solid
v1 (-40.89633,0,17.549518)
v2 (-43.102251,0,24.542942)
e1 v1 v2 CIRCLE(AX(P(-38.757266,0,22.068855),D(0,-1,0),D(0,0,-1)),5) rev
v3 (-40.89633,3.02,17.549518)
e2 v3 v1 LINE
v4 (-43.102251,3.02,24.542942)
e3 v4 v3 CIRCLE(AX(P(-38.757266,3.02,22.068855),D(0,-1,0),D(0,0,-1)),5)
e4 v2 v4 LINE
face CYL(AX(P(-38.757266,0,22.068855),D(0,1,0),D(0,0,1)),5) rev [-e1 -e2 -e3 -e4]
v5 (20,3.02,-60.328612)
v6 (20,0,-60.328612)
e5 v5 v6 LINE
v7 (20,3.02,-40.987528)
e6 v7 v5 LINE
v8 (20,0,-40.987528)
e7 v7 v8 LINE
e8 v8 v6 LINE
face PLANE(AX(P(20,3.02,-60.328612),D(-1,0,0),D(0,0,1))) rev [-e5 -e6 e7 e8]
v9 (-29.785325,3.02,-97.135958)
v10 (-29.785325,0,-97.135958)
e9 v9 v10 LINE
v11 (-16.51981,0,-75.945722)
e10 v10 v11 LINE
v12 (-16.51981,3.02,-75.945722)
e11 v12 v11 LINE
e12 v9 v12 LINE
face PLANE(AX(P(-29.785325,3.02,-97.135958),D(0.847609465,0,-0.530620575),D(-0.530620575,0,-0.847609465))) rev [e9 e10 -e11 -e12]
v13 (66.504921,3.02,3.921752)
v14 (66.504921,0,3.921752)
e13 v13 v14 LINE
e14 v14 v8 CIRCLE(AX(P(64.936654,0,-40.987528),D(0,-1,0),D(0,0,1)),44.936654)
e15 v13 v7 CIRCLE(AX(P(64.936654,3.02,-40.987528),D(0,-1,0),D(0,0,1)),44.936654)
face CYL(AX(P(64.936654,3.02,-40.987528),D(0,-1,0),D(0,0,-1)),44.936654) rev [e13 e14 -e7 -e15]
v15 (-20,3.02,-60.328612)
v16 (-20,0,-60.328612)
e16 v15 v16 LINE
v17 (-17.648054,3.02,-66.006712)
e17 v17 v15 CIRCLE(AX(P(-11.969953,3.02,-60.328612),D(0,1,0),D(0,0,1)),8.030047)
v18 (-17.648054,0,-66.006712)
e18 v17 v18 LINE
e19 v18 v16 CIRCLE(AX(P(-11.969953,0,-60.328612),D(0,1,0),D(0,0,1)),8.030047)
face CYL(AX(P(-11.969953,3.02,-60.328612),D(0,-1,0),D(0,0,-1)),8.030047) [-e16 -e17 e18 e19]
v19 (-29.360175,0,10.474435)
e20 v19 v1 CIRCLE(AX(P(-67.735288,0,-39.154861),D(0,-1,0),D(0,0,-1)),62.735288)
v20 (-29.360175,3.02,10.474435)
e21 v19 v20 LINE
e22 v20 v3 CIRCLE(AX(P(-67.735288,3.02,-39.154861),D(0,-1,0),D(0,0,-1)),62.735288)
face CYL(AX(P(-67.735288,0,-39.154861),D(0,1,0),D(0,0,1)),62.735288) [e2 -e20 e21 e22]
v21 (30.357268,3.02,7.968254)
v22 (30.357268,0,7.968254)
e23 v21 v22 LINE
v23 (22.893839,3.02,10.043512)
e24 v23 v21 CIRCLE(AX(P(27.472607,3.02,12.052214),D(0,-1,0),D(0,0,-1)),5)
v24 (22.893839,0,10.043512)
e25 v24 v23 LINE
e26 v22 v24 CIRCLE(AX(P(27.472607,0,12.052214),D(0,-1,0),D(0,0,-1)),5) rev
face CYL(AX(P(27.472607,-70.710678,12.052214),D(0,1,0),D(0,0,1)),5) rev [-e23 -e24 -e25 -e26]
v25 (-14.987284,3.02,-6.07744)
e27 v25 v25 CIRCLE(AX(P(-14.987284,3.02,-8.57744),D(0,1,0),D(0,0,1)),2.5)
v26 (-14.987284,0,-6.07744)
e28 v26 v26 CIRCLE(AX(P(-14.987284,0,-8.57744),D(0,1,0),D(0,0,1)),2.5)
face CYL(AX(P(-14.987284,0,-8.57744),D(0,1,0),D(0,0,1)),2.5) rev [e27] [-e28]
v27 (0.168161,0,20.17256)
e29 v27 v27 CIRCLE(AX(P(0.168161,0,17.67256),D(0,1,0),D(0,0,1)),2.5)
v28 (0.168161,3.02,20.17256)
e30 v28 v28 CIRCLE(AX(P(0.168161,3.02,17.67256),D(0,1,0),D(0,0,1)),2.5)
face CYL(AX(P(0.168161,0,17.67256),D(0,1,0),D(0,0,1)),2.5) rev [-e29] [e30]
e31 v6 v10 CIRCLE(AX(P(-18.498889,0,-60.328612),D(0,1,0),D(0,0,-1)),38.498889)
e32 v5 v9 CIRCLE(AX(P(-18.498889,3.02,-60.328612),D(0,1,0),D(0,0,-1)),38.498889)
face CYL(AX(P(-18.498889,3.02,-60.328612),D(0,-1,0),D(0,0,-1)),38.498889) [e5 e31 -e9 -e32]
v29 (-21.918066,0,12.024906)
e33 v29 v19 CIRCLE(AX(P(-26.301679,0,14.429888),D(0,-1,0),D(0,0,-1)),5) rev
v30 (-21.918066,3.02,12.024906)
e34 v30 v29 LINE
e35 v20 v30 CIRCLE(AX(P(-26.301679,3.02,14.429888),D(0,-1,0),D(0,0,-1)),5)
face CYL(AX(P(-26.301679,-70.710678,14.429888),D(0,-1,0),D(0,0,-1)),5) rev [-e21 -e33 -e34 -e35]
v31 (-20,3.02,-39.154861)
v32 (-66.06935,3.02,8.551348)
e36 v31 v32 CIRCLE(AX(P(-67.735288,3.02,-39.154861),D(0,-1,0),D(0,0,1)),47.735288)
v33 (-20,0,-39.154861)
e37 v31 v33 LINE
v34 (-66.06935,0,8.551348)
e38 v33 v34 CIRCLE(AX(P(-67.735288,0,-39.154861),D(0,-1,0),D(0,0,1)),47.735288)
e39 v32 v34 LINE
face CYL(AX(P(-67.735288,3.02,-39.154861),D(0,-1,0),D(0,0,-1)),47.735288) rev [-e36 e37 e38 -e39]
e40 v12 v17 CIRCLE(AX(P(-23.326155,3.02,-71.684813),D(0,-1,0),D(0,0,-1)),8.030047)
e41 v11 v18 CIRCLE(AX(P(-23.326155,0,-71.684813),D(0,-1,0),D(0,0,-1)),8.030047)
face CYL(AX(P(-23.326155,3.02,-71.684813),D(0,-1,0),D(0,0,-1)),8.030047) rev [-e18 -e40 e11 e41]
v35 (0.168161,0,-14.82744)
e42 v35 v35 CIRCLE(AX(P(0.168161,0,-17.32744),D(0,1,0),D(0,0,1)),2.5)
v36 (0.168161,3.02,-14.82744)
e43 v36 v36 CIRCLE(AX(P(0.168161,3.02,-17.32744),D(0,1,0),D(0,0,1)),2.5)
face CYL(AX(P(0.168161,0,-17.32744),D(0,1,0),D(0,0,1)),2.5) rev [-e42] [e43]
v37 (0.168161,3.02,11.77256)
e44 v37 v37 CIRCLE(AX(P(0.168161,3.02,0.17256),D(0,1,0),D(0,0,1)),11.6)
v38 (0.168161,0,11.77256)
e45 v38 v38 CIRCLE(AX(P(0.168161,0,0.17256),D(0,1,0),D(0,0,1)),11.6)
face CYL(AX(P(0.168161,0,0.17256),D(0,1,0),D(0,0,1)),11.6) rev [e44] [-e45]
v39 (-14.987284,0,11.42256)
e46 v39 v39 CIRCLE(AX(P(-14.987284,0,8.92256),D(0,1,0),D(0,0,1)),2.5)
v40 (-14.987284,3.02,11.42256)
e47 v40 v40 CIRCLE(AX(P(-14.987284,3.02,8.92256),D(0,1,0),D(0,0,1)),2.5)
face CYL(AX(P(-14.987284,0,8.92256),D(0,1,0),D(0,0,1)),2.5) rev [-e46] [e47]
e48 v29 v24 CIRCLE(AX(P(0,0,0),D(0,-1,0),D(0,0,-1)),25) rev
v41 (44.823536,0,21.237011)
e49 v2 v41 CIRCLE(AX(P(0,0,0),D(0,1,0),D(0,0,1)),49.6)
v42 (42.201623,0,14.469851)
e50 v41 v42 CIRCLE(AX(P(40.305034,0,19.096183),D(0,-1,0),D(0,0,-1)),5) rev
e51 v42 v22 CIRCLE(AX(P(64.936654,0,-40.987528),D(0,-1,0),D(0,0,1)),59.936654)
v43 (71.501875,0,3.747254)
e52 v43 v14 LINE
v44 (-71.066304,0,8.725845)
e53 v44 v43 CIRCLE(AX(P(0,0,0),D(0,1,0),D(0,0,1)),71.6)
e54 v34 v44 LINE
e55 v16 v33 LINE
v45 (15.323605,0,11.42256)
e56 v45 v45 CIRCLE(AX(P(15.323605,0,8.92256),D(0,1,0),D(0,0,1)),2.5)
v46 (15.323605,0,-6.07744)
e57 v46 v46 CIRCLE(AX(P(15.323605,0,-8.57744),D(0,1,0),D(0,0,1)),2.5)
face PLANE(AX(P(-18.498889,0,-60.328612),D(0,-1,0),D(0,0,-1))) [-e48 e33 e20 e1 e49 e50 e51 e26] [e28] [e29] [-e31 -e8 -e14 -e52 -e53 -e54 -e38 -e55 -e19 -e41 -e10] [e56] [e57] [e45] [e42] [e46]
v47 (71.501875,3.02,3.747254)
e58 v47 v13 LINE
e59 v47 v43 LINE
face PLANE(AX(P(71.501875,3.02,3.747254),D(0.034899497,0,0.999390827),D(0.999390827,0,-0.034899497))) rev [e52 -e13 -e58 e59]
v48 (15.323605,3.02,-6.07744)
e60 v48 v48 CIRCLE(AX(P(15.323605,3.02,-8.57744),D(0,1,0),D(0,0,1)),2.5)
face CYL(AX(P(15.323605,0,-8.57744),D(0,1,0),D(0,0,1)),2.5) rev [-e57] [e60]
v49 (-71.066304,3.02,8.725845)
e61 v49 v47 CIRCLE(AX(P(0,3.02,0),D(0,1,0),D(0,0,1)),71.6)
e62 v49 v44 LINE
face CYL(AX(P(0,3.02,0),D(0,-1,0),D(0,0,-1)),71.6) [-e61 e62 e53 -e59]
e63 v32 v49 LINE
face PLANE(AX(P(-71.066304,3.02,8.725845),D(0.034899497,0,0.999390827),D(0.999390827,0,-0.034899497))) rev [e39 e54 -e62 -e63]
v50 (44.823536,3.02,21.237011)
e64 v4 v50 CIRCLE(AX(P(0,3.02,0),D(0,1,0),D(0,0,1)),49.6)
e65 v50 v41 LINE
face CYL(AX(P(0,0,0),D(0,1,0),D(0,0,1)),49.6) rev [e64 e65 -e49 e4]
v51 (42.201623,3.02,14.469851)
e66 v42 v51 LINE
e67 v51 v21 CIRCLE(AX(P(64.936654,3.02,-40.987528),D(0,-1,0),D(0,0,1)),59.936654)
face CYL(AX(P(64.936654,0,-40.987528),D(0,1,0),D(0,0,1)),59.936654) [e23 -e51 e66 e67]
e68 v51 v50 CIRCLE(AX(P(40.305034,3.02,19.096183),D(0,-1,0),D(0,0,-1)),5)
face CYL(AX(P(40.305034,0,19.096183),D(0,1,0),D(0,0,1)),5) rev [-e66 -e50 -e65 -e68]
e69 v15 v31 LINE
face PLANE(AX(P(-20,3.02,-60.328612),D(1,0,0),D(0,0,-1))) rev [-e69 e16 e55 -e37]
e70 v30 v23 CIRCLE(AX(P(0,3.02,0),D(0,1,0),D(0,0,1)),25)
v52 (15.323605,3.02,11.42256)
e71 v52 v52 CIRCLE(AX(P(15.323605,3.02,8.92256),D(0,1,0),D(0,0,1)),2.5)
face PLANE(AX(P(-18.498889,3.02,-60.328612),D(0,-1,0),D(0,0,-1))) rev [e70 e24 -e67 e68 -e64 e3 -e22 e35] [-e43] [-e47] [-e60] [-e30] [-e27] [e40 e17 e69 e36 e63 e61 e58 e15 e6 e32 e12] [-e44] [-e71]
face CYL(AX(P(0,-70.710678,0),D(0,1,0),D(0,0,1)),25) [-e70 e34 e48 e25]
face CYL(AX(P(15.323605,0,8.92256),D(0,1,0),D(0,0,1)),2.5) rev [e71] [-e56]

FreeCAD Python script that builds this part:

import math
import FreeCAD as App
import Part
import Sketcher

V = App.Vector


def edges_at(feature, points):
    """Names of the edges that pass closest to the given points."""
    edges = feature.Shape.Edges
    near = lambda p: min(range(len(edges)), key=lambda i: edges[i].distToShape(Part.Vertex(*p))[0])
    return sorted({f"Edge{near(p) + 1}" for p in points})

doc = App.newDocument("Part")
params = doc.addObject("Spreadsheet::Sheet", "Params")
for row, (alias, value) in enumerate([
    ("sketch1_radius", "71.6 mm"),
    ("sketch1_length", "25 mm"),
    ("sketch1_length2", "5 mm"),
    ("sketch1_length3", "5 mm"),
    ("pad1_length", "3.02 mm"),
    ("sketch2_radius", "49.6 mm"),
    ("fillet_radius", "5 mm"),
    ("sketch3_diameter", "50 mm"),
    ("pad2_length", "3.02 mm"),
    ("fillet2_radius", "5 mm"),
    ("sketch4_diameter", "23.2 mm"),
    ("sketch5_diameter", "5 mm"),
], start=1):
    params.set(f"A{row}", alias)
    params.set(f"B{row}", "=" + value)
    params.setAlias(f"B{row}", alias)

body = doc.addObject("PartDesign::Body", "Body")

# Sketch on XZ plane
sketch1 = body.newObject("Sketcher::SketchObject", "Sketch")
sketch1.AttachmentSupport = (doc.getObject("XZ_Plane"), [""])
sketch1.MapMode = "FlatFace"
sketch1.addGeometry([
    Part.LineSegment(V(-29.785325, -97.135958, 0), V(-16.51981, -75.945722, 0)),  # 0
    Part.ArcOfCircle(Part.Circle(V(-23.326155, -71.684813, 0), V(0, 0, 1), 8.030047), math.radians(-32.047394), math.radians(45)),  # 1
    Part.ArcOfCircle(Part.Circle(V(-11.969953, -60.328612, 0), V(0, 0, 1), 8.030047), math.radians(-180), math.radians(-135)),  # 2
    Part.LineSegment(V(-20, -60.328612, 0), V(-20, -39.154861, 0)),  # 3
    Part.ArcOfCircle(Part.Circle(V(-67.735288, -39.154861, 0), V(0, 0, 1), 47.735288), math.radians(0), math.radians(88)),  # 4
    Part.LineSegment(V(-66.06935, 8.551348, 0), V(-71.066304, 8.725845, 0)),  # 5
    Part.ArcOfCircle(Part.Circle(V(0, 0, 0), V(0, 0, 1), 71.6), math.radians(3), math.radians(173)),  # 6
    Part.LineSegment(V(71.501875, 3.747254, 0), V(66.504921, 3.921752, 0)),  # 7
    Part.ArcOfCircle(Part.Circle(V(64.936654, -40.987528, 0), V(0, 0, 1), 44.936654), math.radians(88), math.radians(180)),  # 8
    Part.LineSegment(V(20, -40.987528, 0), V(20, -60.328612, 0)),  # 9
    Part.ArcOfCircle(Part.Circle(V(-18.498889, -60.328612, 0), V(0, 0, 1), 38.498889), math.radians(-107.047394), math.radians(0)),  # 10
], False)
sketch1.addConstraint([
    Sketcher.Constraint("Coincident", 0, 2, 1, 1),
    Sketcher.Constraint("Coincident", 1, 2, 2, 2),
    Sketcher.Constraint("Coincident", 2, 1, 3, 1),
    Sketcher.Constraint("Coincident", 3, 2, 4, 1),
    Sketcher.Constraint("Coincident", 4, 2, 5, 1),
    Sketcher.Constraint("Coincident", 5, 2, 6, 2),
    Sketcher.Constraint("Coincident", 6, 1, 7, 1),
    Sketcher.Constraint("Coincident", 7, 2, 8, 1),
    Sketcher.Constraint("Coincident", 8, 2, 9, 1),
    Sketcher.Constraint("Coincident", 9, 2, 10, 2),
    Sketcher.Constraint("Coincident", 10, 1, 0, 1),
    Sketcher.Constraint("Vertical", 3),
    Sketcher.Constraint("Vertical", 9),
    Sketcher.Constraint("Coincident", 6, 3, -1, 1),
    Sketcher.Constraint("Radius", 6, 71.6),
    Sketcher.Constraint("Distance", 0, 25.0),
    Sketcher.Constraint("Distance", 5, 5.0),
    Sketcher.Constraint("Distance", 7, 5.0),
    Sketcher.Constraint("DistanceX", 2, 1, -1, 1, 20.0),
    Sketcher.Constraint("DistanceX", -1, 1, 8, 2, 20.0),
    Sketcher.Constraint("Radius", 10, 38.498889),
    Sketcher.Constraint("Radius", 1, 8.030047),
    Sketcher.Constraint("Radius", 2, 8.030047),
    Sketcher.Constraint("Radius", 4, 47.735288),
    Sketcher.Constraint("Radius", 8, 44.936654),
    Sketcher.Constraint("DistanceY", 3, 1, 3, 2, 21.17375),
    Sketcher.Constraint("DistanceX", 1, 3, 2, 3, 11.356202),
    Sketcher.Constraint("DistanceY", 1, 3, 10, 3, 11.356202),
    Sketcher.Constraint("DistanceY", 1, 2, 10, 3, 5.678101),
    Sketcher.Constraint("DistanceY", 1, 2, 2, 1, 5.678101),
    Sketcher.Constraint("DistanceY", 1, 2, 9, 2, 5.678101),
    Sketcher.Constraint("DistanceY", 9, 2, 9, 1, 19.341084),
    Sketcher.Constraint("DistanceY", 2, 3, -1, 1, 60.328612),
    Sketcher.Constraint("DistanceY", 4, 3, -1, 1, 39.154861),
    Sketcher.Constraint("DistanceX", 0, 2, -1, 1, 16.51981),
    Sketcher.Constraint("DistanceX", -1, 1, 7, 2, 66.504921),
    Sketcher.Constraint("DistanceY", -1, 1, 7, 2, 3.921752),
    Sketcher.Constraint("DistanceX", 5, 2, -1, 1, 71.066304),
])
sketch1.setExpression("Constraints[14]", "Params.sketch1_radius")
sketch1.setExpression("Constraints[15]", "Params.sketch1_length")
sketch1.setExpression("Constraints[16]", "Params.sketch1_length2")
sketch1.setExpression("Constraints[17]", "Params.sketch1_length3")
pad1 = body.newObject("PartDesign::Pad", "Pad")
pad1.Profile = sketch1
pad1.setExpression("Length", "Params.pad1_length")
pad1.Reversed = True

# Sketch on XZ plane
sketch2 = body.newObject("Sketcher::SketchObject", "Sketch001")
sketch2.AttachmentSupport = (doc.getObject("XZ_Plane"), [""])
sketch2.MapMode = "FlatFace"
sketch2.AttachmentOffset = App.Placement(V(0, 0, -3.02), App.Rotation())
sketch2.addGeometry([
    Part.ArcOfCircle(Part.Circle(V(0, 0, 0), V(0, 0, 1), 50), math.radians(19), math.radians(157)),
    Part.ArcOfCircle(Part.Circle(V(65, -41, 0), V(0, 0, 1), 60), math.radians(108), math.radians(148)),
    Part.ArcOfCircle(Part.Circle(V(0, 0, 0), V(0, 0, 1), 17), math.radians(-32), math.radians(189)),
    Part.ArcOfCircle(Part.Circle(V(-68, -39, 0), V(0, 0, 1), 63), math.radians(35), math.radians(69)),
], False)
sketch2.addConstraint([
    Sketcher.Constraint("Coincident", 0, 1, 1, 1),
    Sketcher.Constraint("Tangent", 1, 2, 2, 1),
    Sketcher.Constraint("Coincident", 2, 2, 3, 1),
    Sketcher.Constraint("Coincident", 3, 2, 0, 2),
    Sketcher.Constraint("Coincident", 0, 3, -1, 1),
    Sketcher.Constraint("Coincident", 2, 3, -1, 1),
    Sketcher.Constraint("Radius", 0, 49.6),
    Sketcher.Constraint("Radius", 2, 16.853622),
    Sketcher.Constraint("Radius", 1, 59.936654),
    Sketcher.Constraint("Radius", 3, 62.735288),
    Sketcher.Constraint("DistanceY", 3, 3, -1, 1, 39.154861),
    Sketcher.Constraint("DistanceY", -1, 1, 0, 1, 16.167989),
    Sketcher.Constraint("DistanceX", 3, 2, -1, 1, 45.58838),
])
sketch2.setExpression("Constraints[6]", "Params.sketch2_radius")
pocket1 = body.newObject("PartDesign::Pocket", "Pocket")
pocket1.Profile = sketch2
pocket1.Type = "ThroughAll"
pocket1.Reversed = True
doc.recompute()

fillet = body.newObject("PartDesign::Fillet", "Fillet")
fillet.Base = (pocket1, edges_at(pocket1, [(-45.588, 1.51, 19.541), (46.891, 1.51, 16.168)]))
fillet.setExpression("Radius", "Params.fillet_radius")

# Sketch on XZ plane
sketch3 = body.newObject("Sketcher::SketchObject", "Sketch002")
sketch3.AttachmentSupport = (doc.getObject("XZ_Plane"), [""])
sketch3.MapMode = "FlatFace"
sketch3.AttachmentOffset = App.Placement(V(0, 0, -3.02), App.Rotation())
sketch3.addGeometry(Part.Circle(V(0, 0, 0), V(0, 0, 1), 25), False)
sketch3.addConstraint([
    Sketcher.Constraint("Coincident", 0, 3, -1, 1),
    Sketcher.Constraint("Diameter", 0, 50.0),
])
sketch3.setExpression("Constraints[1]", "Params.sketch3_diameter")
pad2 = body.newObject("PartDesign::Pad", "Pad001")
pad2.Profile = sketch3
pad2.setExpression("Length", "Params.pad2_length")
doc.recompute()

fillet2 = body.newObject("PartDesign::Fillet", "Fillet001")
fillet2.Base = (pad2, edges_at(pad2, [(24.756, 1.51, 3.486), (-24.253, 1.51, 6.067)]))
fillet2.setExpression("Radius", "Params.fillet2_radius")

# Sketch on XZ plane
sketch4 = body.newObject("Sketcher::SketchObject", "Sketch003")
sketch4.AttachmentSupport = (doc.getObject("XZ_Plane"), [""])
sketch4.MapMode = "FlatFace"
sketch4.AttachmentOffset = App.Placement(V(0, 0, -3.02), App.Rotation())
sketch4.addGeometry(Part.Circle(V(0, 0, 0), V(0, 0, 1), 12), False)
sketch4.addConstraint([
    Sketcher.Constraint("Diameter", 0, 23.2),
    Sketcher.Constraint("DistanceX", -1, 1, 0, 3, 0.168161),
    Sketcher.Constraint("DistanceY", -1, 1, 0, 3, 0.17256),
])
sketch4.setExpression("Constraints[0]", "Params.sketch4_diameter")
pocket2 = body.newObject("PartDesign::Pocket", "Pocket001")
pocket2.Profile = sketch4
pocket2.Type = "ThroughAll"
pocket2.Reversed = True

# Sketch on XZ plane
sketch5 = body.newObject("Sketcher::SketchObject", "Sketch004")
sketch5.AttachmentSupport = (doc.getObject("XZ_Plane"), [""])
sketch5.MapMode = "FlatFace"
sketch5.AttachmentOffset = App.Placement(V(0, 0, -3.02), App.Rotation())
sketch5.addGeometry([
    Part.Circle(V(0.2, 17.7, 0), V(0, 0, 1), 2.5),  # 0
    Part.Circle(V(-15, 8.9, 0), V(0, 0, 1), 2.5),  # 1
    Part.Circle(V(-15, -8.6, 0), V(0, 0, 1), 2.5),  # 2
    Part.Circle(V(0.2, -17.3, 0), V(0, 0, 1), 2.5),  # 3
    Part.Circle(V(15.3, -8.6, 0), V(0, 0, 1), 2.5),  # 4
    Part.Circle(V(15.3, 8.9, 0), V(0, 0, 1), 2.5),  # 5
], False)
sketch5.addConstraint([
    Sketcher.Constraint("Equal", 0, 1),
    Sketcher.Constraint("Equal", 1, 2),
    Sketcher.Constraint("Equal", 2, 3),
    Sketcher.Constraint("Equal", 3, 4),
    Sketcher.Constraint("Equal", 4, 5),
    Sketcher.Constraint("Horizontal", 2, 3, 4, 3),
    Sketcher.Constraint("Horizontal", 1, 3, 5, 3),
    Sketcher.Constraint("Vertical", 1, 3, 2, 3),
    Sketcher.Constraint("Vertical", 0, 3, 3, 3),
    Sketcher.Constraint("Vertical", 4, 3, 5, 3),
    Sketcher.Constraint("Diameter", 0, 5.0),
    Sketcher.Constraint("DistanceY", 3, 3, 0, 3, 35.0),
    Sketcher.Constraint("DistanceY", 2, 3, 1, 3, 17.5),
    Sketcher.Constraint("DistanceY", 1, 3, 0, 3, 8.75),
    Sketcher.Constraint("DistanceX", -1, 1, 0, 3, 0.168161),
    Sketcher.Constraint("DistanceY", -1, 1, 0, 3, 17.67256),
    Sketcher.Constraint("DistanceX", 2, 3, 4, 3, 30.310889),
    Sketcher.Constraint("DistanceX", 1, 3, -1, 1, 14.987284),
])
sketch5.setExpression("Constraints[10]", "Params.sketch5_diameter")
pocket3 = body.newObject("PartDesign::Pocket", "Pocket002")
pocket3.Profile = sketch5
pocket3.Type = "ThroughAll"
pocket3.Reversed = True

doc.recompute()
